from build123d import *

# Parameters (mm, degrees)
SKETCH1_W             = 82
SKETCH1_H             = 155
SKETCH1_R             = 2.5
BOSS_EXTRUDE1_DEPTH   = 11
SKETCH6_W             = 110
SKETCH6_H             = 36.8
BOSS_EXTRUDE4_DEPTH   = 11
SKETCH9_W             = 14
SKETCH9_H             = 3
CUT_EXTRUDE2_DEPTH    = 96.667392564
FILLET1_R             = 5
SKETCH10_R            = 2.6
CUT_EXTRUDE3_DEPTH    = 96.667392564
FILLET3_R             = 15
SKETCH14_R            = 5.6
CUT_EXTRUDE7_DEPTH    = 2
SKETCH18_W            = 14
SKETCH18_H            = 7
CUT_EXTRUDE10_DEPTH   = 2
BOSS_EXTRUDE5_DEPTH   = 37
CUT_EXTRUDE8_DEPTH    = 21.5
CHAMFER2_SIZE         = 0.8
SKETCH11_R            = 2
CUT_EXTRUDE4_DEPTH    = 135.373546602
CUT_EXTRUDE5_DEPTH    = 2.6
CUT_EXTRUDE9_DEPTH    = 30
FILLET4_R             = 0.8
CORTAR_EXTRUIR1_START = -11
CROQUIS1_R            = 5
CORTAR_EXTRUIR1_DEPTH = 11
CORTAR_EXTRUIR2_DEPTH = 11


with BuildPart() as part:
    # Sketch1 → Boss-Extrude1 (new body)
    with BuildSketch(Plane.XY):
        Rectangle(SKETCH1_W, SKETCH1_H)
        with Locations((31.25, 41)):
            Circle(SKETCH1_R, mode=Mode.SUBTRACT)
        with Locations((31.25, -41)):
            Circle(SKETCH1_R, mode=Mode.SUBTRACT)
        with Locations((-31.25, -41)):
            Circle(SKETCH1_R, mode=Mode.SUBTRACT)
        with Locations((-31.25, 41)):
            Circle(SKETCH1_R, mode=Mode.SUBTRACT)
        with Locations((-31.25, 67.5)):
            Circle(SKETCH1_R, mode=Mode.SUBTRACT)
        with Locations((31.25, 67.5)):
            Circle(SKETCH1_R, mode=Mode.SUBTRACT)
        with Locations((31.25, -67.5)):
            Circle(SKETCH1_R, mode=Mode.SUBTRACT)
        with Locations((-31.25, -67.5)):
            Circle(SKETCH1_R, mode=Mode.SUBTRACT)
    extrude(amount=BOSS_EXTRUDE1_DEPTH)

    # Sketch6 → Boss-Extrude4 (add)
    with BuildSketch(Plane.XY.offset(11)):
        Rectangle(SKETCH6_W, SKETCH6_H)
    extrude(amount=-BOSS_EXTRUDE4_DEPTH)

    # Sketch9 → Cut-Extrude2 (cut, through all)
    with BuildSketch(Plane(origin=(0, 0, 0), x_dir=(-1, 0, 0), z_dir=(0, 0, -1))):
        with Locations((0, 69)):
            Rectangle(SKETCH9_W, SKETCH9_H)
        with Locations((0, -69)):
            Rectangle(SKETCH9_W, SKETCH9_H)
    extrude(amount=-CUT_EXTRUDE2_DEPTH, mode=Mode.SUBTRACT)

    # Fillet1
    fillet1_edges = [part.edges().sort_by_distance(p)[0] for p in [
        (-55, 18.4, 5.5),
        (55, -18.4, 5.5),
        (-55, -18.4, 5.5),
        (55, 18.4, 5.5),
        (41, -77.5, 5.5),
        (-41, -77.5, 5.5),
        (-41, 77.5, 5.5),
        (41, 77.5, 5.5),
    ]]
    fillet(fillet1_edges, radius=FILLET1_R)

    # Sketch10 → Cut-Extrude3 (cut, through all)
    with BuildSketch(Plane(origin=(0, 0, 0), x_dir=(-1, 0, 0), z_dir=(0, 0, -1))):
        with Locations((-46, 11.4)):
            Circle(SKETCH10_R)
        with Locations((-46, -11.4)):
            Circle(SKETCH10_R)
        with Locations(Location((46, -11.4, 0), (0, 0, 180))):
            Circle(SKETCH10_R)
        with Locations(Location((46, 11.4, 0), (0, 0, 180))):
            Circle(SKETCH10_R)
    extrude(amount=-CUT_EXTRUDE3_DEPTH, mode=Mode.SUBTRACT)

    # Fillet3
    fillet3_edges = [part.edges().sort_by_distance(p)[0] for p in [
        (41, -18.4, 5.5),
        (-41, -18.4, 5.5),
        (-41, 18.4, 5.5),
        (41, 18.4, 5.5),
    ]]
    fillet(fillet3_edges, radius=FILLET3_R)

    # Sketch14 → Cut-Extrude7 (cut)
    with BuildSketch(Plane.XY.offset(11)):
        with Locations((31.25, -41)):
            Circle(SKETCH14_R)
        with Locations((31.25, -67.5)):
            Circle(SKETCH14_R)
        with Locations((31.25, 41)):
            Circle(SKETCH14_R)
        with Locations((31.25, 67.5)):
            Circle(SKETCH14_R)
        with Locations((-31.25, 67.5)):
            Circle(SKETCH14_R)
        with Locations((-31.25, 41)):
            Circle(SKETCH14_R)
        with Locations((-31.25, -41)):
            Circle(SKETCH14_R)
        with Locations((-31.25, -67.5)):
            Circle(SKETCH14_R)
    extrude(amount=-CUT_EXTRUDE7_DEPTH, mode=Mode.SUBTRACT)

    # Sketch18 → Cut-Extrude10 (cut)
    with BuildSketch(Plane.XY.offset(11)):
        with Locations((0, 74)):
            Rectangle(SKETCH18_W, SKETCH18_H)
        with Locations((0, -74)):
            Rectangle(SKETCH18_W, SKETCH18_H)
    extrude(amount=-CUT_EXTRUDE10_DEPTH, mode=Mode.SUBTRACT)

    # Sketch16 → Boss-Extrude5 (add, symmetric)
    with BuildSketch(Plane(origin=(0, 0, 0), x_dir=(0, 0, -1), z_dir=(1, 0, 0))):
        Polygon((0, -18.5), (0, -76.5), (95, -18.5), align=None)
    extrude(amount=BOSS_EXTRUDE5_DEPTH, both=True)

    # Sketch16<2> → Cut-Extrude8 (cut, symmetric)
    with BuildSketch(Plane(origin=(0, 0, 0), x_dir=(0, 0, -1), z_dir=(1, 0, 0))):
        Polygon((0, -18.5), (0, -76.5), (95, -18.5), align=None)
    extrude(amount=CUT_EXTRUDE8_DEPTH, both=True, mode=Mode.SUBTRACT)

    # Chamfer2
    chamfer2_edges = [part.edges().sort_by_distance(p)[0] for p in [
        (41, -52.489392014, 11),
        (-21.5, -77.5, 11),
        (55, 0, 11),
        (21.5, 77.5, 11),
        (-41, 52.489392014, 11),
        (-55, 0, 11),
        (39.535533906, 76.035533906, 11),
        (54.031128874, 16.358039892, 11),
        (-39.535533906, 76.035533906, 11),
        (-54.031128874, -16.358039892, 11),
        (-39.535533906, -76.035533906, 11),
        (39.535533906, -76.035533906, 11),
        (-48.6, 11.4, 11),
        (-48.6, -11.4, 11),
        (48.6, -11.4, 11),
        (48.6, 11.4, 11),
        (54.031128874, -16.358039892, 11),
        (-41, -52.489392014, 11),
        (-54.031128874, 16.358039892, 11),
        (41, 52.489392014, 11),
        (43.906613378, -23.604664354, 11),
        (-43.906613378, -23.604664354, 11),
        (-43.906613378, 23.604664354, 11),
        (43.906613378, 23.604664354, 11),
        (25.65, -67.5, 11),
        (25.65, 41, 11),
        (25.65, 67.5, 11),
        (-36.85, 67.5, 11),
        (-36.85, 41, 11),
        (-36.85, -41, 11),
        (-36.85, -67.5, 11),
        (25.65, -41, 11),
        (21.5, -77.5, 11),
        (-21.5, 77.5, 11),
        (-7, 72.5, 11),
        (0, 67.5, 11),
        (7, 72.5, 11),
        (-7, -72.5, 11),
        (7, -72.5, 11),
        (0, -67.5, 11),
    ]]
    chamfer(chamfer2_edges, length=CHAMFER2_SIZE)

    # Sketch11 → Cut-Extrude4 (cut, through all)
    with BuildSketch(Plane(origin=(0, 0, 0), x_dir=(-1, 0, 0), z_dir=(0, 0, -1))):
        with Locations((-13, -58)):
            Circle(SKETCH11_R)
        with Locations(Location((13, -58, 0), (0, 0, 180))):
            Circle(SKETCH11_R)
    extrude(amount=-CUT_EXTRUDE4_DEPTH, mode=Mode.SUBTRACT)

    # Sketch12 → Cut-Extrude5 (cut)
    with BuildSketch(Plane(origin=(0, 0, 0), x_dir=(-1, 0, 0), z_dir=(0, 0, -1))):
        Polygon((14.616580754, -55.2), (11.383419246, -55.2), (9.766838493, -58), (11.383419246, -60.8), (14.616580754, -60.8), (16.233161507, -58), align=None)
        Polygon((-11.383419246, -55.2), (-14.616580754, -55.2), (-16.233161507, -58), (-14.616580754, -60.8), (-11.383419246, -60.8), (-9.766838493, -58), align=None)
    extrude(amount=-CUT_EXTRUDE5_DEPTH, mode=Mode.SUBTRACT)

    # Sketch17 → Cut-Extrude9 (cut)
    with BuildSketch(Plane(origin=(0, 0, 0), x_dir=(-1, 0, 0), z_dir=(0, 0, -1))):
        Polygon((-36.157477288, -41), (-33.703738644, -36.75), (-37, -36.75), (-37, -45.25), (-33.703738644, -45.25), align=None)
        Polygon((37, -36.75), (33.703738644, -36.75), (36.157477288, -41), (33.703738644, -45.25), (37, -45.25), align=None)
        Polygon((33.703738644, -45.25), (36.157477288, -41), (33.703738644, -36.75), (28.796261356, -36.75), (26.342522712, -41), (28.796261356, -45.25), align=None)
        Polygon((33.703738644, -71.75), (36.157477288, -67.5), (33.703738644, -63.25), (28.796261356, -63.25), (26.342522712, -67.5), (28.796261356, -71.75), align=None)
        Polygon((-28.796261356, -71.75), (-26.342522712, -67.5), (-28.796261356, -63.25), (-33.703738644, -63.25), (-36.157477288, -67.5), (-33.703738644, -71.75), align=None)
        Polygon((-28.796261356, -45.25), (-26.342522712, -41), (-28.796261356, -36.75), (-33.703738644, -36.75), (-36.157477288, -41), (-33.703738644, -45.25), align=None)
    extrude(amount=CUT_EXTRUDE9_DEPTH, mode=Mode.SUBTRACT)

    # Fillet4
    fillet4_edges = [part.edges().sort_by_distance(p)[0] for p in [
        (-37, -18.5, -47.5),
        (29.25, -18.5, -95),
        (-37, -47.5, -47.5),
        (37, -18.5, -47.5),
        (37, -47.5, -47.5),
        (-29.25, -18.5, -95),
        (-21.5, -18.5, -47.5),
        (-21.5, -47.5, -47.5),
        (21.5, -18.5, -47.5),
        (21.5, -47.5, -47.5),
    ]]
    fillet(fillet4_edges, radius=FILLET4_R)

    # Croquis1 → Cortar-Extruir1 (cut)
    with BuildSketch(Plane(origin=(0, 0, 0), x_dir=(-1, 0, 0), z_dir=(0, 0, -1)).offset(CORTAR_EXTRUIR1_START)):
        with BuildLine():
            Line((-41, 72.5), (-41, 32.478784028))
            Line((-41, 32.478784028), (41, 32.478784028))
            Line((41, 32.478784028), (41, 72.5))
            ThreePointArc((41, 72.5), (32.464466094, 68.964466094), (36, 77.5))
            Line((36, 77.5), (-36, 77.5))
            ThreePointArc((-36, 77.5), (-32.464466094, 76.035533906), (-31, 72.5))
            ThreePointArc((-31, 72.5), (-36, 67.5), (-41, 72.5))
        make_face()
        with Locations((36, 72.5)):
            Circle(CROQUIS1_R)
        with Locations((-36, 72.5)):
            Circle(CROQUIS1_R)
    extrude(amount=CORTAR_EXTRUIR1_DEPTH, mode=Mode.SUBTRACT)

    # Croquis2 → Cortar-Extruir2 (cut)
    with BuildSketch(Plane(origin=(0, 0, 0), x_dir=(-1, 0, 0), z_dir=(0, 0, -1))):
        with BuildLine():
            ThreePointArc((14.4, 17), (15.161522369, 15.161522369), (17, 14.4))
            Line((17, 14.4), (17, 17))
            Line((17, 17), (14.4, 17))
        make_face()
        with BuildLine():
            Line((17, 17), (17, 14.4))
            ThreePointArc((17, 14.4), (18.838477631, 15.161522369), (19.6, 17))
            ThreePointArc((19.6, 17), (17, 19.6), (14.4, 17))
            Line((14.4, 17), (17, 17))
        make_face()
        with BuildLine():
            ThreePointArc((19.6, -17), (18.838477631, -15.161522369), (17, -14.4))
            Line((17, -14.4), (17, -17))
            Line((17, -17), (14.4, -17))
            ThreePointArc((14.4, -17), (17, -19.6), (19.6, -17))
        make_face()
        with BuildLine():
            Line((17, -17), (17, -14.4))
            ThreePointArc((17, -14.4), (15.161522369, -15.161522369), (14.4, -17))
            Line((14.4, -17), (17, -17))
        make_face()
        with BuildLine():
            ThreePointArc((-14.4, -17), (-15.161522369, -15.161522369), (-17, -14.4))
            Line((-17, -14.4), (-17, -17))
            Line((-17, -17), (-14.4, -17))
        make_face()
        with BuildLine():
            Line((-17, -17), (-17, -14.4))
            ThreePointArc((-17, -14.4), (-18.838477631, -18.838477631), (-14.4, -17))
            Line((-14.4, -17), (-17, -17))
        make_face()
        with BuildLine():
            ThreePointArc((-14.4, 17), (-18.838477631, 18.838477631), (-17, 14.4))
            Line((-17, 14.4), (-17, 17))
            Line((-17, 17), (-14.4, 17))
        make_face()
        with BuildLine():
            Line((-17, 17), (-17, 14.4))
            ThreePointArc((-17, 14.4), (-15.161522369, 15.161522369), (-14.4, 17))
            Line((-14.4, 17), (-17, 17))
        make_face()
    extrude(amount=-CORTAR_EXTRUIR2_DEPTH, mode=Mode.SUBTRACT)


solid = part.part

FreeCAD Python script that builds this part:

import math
import FreeCAD as App
import Part
import Sketcher
Q = App.Units.Quantity


def edges_at(feature, points):
    """Names of the edges that pass closest to the given points."""
    edges = feature.Shape.Edges
    near = lambda p: min(range(len(edges)), key=lambda i: edges[i].distToShape(Part.Vertex(*p))[0])
    return sorted({f"Edge{near(p) + 1}" for p in points})

doc = App.newDocument("Part")
body = doc.addObject("PartDesign::Body", "Body")

# Sketch on XY plane
sketch1 = body.newObject("Sketcher::SketchObject", "Sketch")
sketch1.AttachmentSupport = (doc.getObject("XY_Plane"), [""])
sketch1.MapMode = "FlatFace"
sketch1.addGeometry(Part.LineSegment(App.Vector(-41, 77.5, 0), App.Vector(-41, -77.5, 0)), False)
sketch1.addGeometry(Part.LineSegment(App.Vector(-41, -77.5, 0), App.Vector(41, -77.5, 0)), False)
sketch1.addGeometry(Part.LineSegment(App.Vector(41, -77.5, 0), App.Vector(41, 77.5, 0)), False)
sketch1.addGeometry(Part.LineSegment(App.Vector(41, 77.5, 0), App.Vector(-41, 77.5, 0)), False)
sketch1.addGeometry(Part.Circle(App.Vector(-31.25, -67.5, 0), App.Vector(0, 0, 1), 2.5), False)
sketch1.addGeometry(Part.Circle(App.Vector(-31.25, -41, 0), App.Vector(0, 0, 1), 2.5), False)
sketch1.addGeometry(Part.Circle(App.Vector(31.25, -67.5, 0), App.Vector(0, 0, 1), 2.5), False)
sketch1.addGeometry(Part.Circle(App.Vector(31.25, -41, 0), App.Vector(0, 0, 1), 2.5), False)
sketch1.addGeometry(Part.Circle(App.Vector(-31.25, 41, 0), App.Vector(0, 0, 1), 2.5), False)
sketch1.addGeometry(Part.Circle(App.Vector(-31.25, 67.5, 0), App.Vector(0, 0, 1), 2.5), False)
sketch1.addGeometry(Part.Circle(App.Vector(31.25, 41, 0), App.Vector(0, 0, 1), 2.5), False)
sketch1.addGeometry(Part.Circle(App.Vector(31.25, 67.5, 0), App.Vector(0, 0, 1), 2.5), False)
sketch1.addConstraint(Sketcher.Constraint("Coincident", 0, 2, 1, 1))
sketch1.addConstraint(Sketcher.Constraint("Coincident", 1, 2, 2, 1))
sketch1.addConstraint(Sketcher.Constraint("Coincident", 2, 2, 3, 1))
sketch1.addConstraint(Sketcher.Constraint("Coincident", 3, 2, 0, 1))
sketch1.addConstraint(Sketcher.Constraint("Vertical", 0))
sketch1.addConstraint(Sketcher.Constraint("Horizontal", 1))
sketch1.addConstraint(Sketcher.Constraint("Vertical", 2))
sketch1.addConstraint(Sketcher.Constraint("Horizontal", 3))
sketch1.addConstraint(Sketcher.Constraint("Equal", 4, 5))
sketch1.addConstraint(Sketcher.Constraint("Equal", 5, 6))
sketch1.addConstraint(Sketcher.Constraint("Equal", 6, 7))
sketch1.addConstraint(Sketcher.Constraint("Equal", 7, 8))
sketch1.addConstraint(Sketcher.Constraint("Equal", 8, 9))
sketch1.addConstraint(Sketcher.Constraint("Equal", 9, 10))
sketch1.addConstraint(Sketcher.Constraint("Equal", 10, 11))
sketch1.addConstraint(Sketcher.Constraint("Symmetric", 7, 3, 8, 3, -1, 1))
sketch1.addConstraint(Sketcher.Constraint("Symmetric", 6, 3, 9, 3, -1, 1))
sketch1.addConstraint(Sketcher.Constraint("Symmetric", 5, 3, 10, 3, -1, 1))
sketch1.addConstraint(Sketcher.Constraint("Symmetric", 4, 3, 11, 3, -1, 1))
sketch1.addConstraint(Sketcher.Constraint("Symmetric", 0, 2, 2, 2, -1, 1))
sketch1.addConstraint(Sketcher.Constraint("Symmetric", 4, 3, 6, 3, -2))
sketch1.addConstraint(Sketcher.Constraint("Symmetric", 5, 3, 7, 3, -2))
sketch1.addConstraint(Sketcher.Constraint("Vertical", 4, 3, 5, 3))
sketch1.addConstraint(Sketcher.Constraint("Diameter", 4, 5.0))
sketch1.addConstraint(Sketcher.Constraint("DistanceX", 1, 1, 1, 2, 82.0))
sketch1.addConstraint(Sketcher.Constraint("DistanceY", 0, 2, 0, 1, 155.0))
sketch1.addConstraint(Sketcher.Constraint("DistanceY", 5, 3, -1, 1, 41.0))
sketch1.addConstraint(Sketcher.Constraint("DistanceY", 4, 3, 9, 3, 135.0))
sketch1.addConstraint(Sketcher.Constraint("DistanceX", 4, 3, 6, 3, 62.5))
pad1 = body.newObject("PartDesign::Pad", "Pad")
pad1.Profile = sketch1
pad1.Length = 11

# Sketch on XY plane
sketch2 = body.newObject("Sketcher::SketchObject", "Sketch001")
sketch2.AttachmentSupport = (doc.getObject("XY_Plane"), [""])
sketch2.MapMode = "FlatFace"
sketch2.AttachmentOffset = App.Placement(App.Vector(0, 0, 11), App.Rotation())
sketch2.addGeometry(Part.LineSegment(App.Vector(-55, 18.4, 0), App.Vector(-55, -18.4, 0)), False)
sketch2.addGeometry(Part.LineSegment(App.Vector(-55, -18.4, 0), App.Vector(55, -18.4, 0)), False)
sketch2.addGeometry(Part.LineSegment(App.Vector(55, -18.4, 0), App.Vector(55, 18.4, 0)), False)
sketch2.addGeometry(Part.LineSegment(App.Vector(55, 18.4, 0), App.Vector(-55, 18.4, 0)), False)
sketch2.addConstraint(Sketcher.Constraint("Coincident", 0, 2, 1, 1))
sketch2.addConstraint(Sketcher.Constraint("Coincident", 1, 2, 2, 1))
sketch2.addConstraint(Sketcher.Constraint("Coincident", 2, 2, 3, 1))
sketch2.addConstraint(Sketcher.Constraint("Coincident", 3, 2, 0, 1))
sketch2.addConstraint(Sketcher.Constraint("Vertical", 0))
sketch2.addConstraint(Sketcher.Constraint("Horizontal", 1))
sketch2.addConstraint(Sketcher.Constraint("Vertical", 2))
sketch2.addConstraint(Sketcher.Constraint("Horizontal", 3))
sketch2.addConstraint(Sketcher.Constraint("Symmetric", 0, 2, 2, 2, -1, 1))
sketch2.addConstraint(Sketcher.Constraint("DistanceX", 1, 1, 1, 2, 110.0))
sketch2.addConstraint(Sketcher.Constraint("DistanceY", 0, 2, 0, 1, 36.8))
pad2 = body.newObject("PartDesign::Pad", "Pad001")
pad2.Profile = sketch2
pad2.Length = 11
pad2.Reversed = True

# Sketch on XY plane
sketch3 = body.newObject("Sketcher::SketchObject", "Sketch002")
sketch3.AttachmentSupport = (doc.getObject("XY_Plane"), [""])
sketch3.MapMode = "FlatFace"
sketch3.addGeometry(Part.LineSegment(App.Vector(7, 70.5, 0), App.Vector(7, 67.5, 0)), False)
sketch3.addGeometry(Part.LineSegment(App.Vector(7, 67.5, 0), App.Vector(-7, 67.5, 0)), False)
sketch3.addGeometry(Part.LineSegment(App.Vector(-7, 67.5, 0), App.Vector(-7, 70.5, 0)), False)
sketch3.addGeometry(Part.LineSegment(App.Vector(-7, 70.5, 0), App.Vector(7, 70.5, 0)), False)
sketch3.addGeometry(Part.LineSegment(App.Vector(7, -67.5, 0), App.Vector(7, -70.5, 0)), False)
sketch3.addGeometry(Part.LineSegment(App.Vector(7, -70.5, 0), App.Vector(-7, -70.5, 0)), False)
sketch3.addGeometry(Part.LineSegment(App.Vector(-7, -70.5, 0), App.Vector(-7, -67.5, 0)), False)
sketch3.addGeometry(Part.LineSegment(App.Vector(-7, -67.5, 0), App.Vector(7, -67.5, 0)), False)
sketch3.addConstraint(Sketcher.Constraint("Coincident", 0, 2, 1, 1))
sketch3.addConstraint(Sketcher.Constraint("Coincident", 1, 2, 2, 1))
sketch3.addConstraint(Sketcher.Constraint("Coincident", 2, 2, 3, 1))
sketch3.addConstraint(Sketcher.Constraint("Coincident", 3, 2, 0, 1))
sketch3.addConstraint(Sketcher.Constraint("Coincident", 4, 2, 5, 1))
sketch3.addConstraint(Sketcher.Constraint("Coincident", 5, 2, 6, 1))
sketch3.addConstraint(Sketcher.Constraint("Coincident", 6, 2, 7, 1))
sketch3.addConstraint(Sketcher.Constraint("Coincident", 7, 2, 4, 1))
sketch3.addConstraint(Sketcher.Constraint("Vertical", 0))
sketch3.addConstraint(Sketcher.Constraint("Horizontal", 1))
sketch3.addConstraint(Sketcher.Constraint("Vertical", 2))
sketch3.addConstraint(Sketcher.Constraint("Horizontal", 3))
sketch3.addConstraint(Sketcher.Constraint("Vertical", 4))
sketch3.addConstraint(Sketcher.Constraint("Horizontal", 5))
sketch3.addConstraint(Sketcher.Constraint("Vertical", 6))
sketch3.addConstraint(Sketcher.Constraint("Horizontal", 7))
sketch3.addConstraint(Sketcher.Constraint("Symmetric", 2, 2, 4, 2, -1, 1))
sketch3.addConstraint(Sketcher.Constraint("Symmetric", 0, 2, 6, 2, -1, 1))
sketch3.addConstraint(Sketcher.Constraint("Vertical", 3, 2, 4, 2))
sketch3.addConstraint(Sketcher.Constraint("DistanceX", 1, 2, 1, 1, 14.0))
sketch3.addConstraint(Sketcher.Constraint("DistanceY", 0, 2, 0, 1, 3.0))
sketch3.addConstraint(Sketcher.Constraint("DistanceY", 4, 2, 0, 2, 138.0))
pocket1 = body.newObject("PartDesign::Pocket", "Pocket")
pocket1.Profile = sketch3
pocket1.Type = "ThroughAll"
pocket1.Reversed = True
doc.recompute()

fillet = body.newObject("PartDesign::Fillet", "Fillet")
fillet.Base = (pocket1, edges_at(pocket1, [
    (-55, 18.4, 5.5),
    (55, -18.4, 5.5),
    (-55, -18.4, 5.5),
    (55, 18.4, 5.5),
    (41, -77.5, 5.5),
    (-41, -77.5, 5.5),
    (-41, 77.5, 5.5),
    (41, 77.5, 5.5),
]))
fillet.Radius = 5

# Sketch on XY plane
sketch4 = body.newObject("Sketcher::SketchObject", "Sketch003")
sketch4.AttachmentSupport = (doc.getObject("XY_Plane"), [""])
sketch4.MapMode = "FlatFace"
sketch4.addGeometry(Part.Circle(App.Vector(46, 11.4, 0), App.Vector(0, 0, 1), 2.6), False)
sketch4.addGeometry(Part.Circle(App.Vector(46, -11.4, 0), App.Vector(0, 0, 1), 2.6), False)
sketch4.addGeometry(Part.Circle(App.Vector(-46, -11.4, 0), App.Vector(0, 0, 1), 2.6), False)
sketch4.addGeometry(Part.Circle(App.Vector(-46, 11.4, 0), App.Vector(0, 0, 1), 2.6), False)
sketch4.addConstraint(Sketcher.Constraint("Equal", 0, 1))
sketch4.addConstraint(Sketcher.Constraint("Equal", 1, 2))
sketch4.addConstraint(Sketcher.Constraint("Equal", 2, 3))
sketch4.addConstraint(Sketcher.Constraint("Symmetric", 0, 3, 2, 3, -1, 1))
sketch4.addConstraint(Sketcher.Constraint("Symmetric", 1, 3, 3, 3, -1, 1))
sketch4.addConstraint(Sketcher.Constraint("Symmetric", 1, 3, 2, 3, -2))
sketch4.addConstraint(Sketcher.Constraint("Diameter", 0, 5.2))
sketch4.addConstraint(Sketcher.Constraint("DistanceX", -1, 1, 0, 3, 46.0))
sketch4.addConstraint(Sketcher.Constraint("DistanceY", -1, 1, 0, 3, 11.4))
pocket2 = body.newObject("PartDesign::Pocket", "Pocket001")
pocket2.Profile = sketch4
pocket2.Type = "ThroughAll"
pocket2.Reversed = True
doc.recompute()

fillet2 = body.newObject("PartDesign::Fillet", "Fillet001")
fillet2.Base = (pocket2, edges_at(pocket2, [
    (41, -18.4, 5.5),
    (-41, -18.4, 5.5),
    (-41, 18.4, 5.5),
    (41, 18.4, 5.5),
]))
fillet2.Radius = 15

# Sketch on XY plane
sketch5 = body.newObject("Sketcher::SketchObject", "Sketch004")
sketch5.AttachmentSupport = (doc.getObject("XY_Plane"), [""])
sketch5.MapMode = "FlatFace"
sketch5.AttachmentOffset = App.Placement(App.Vector(0, 0, 11), App.Rotation())
sketch5.addGeometry(Part.Circle(App.Vector(31.25, -41, 0), App.Vector(0, 0, 1), 5.6), False)
sketch5.addGeometry(Part.Circle(App.Vector(31.25, -67.5, 0), App.Vector(0, 0, 1), 5.6), False)
sketch5.addGeometry(Part.Circle(App.Vector(31.25, 41, 0), App.Vector(0, 0, 1), 5.6), False)
sketch5.addGeometry(Part.Circle(App.Vector(31.25, 67.5, 0), App.Vector(0, 0, 1), 5.6), False)
sketch5.addGeometry(Part.Circle(App.Vector(-31.25, 67.5, 0), App.Vector(0, 0, 1), 5.6), False)
sketch5.addGeometry(Part.Circle(App.Vector(-31.25, 41, 0), App.Vector(0, 0, 1), 5.6), False)
sketch5.addGeometry(Part.Circle(App.Vector(-31.25, -41, 0), App.Vector(0, 0, 1), 5.6), False)
sketch5.addGeometry(Part.Circle(App.Vector(-31.25, -67.5, 0), App.Vector(0, 0, 1), 5.6), False)
sketch5.addConstraint(Sketcher.Constraint("Equal", 0, 1))
sketch5.addConstraint(Sketcher.Constraint("Equal", 1, 2))
sketch5.addConstraint(Sketcher.Constraint("Equal", 2, 3))
sketch5.addConstraint(Sketcher.Constraint("Equal", 3, 4))
sketch5.addConstraint(Sketcher.Constraint("Equal", 4, 5))
sketch5.addConstraint(Sketcher.Constraint("Equal", 5, 6))
sketch5.addConstraint(Sketcher.Constraint("Equal", 6, 7))
sketch5.addConstraint(Sketcher.Constraint("Symmetric", 1, 3, 4, 3, -1, 1))
sketch5.addConstraint(Sketcher.Constraint("Symmetric", 0, 3, 5, 3, -1, 1))
sketch5.addConstraint(Sketcher.Constraint("Symmetric", 2, 3, 6, 3, -1, 1))
sketch5.addConstraint(Sketcher.Constraint("Symmetric", 3, 3, 7, 3, -1, 1))
sketch5.addConstraint(Sketcher.Constraint("Symmetric", 3, 3, 4, 3, -2))
sketch5.addConstraint(Sketcher.Constraint("Symmetric", 2, 3, 5, 3, -2))
sketch5.addConstraint(Sketcher.Constraint("Vertical", 0, 3, 1, 3))
sketch5.addConstraint(Sketcher.Constraint("Diameter", 0, 11.2))
sketch5.addConstraint(Sketcher.Constraint("DistanceY", 0, 3, -1, 1, 41.0))
sketch5.addConstraint(Sketcher.Constraint("DistanceY", 1, 3, 3, 3, 135.0))
sketch5.addConstraint(Sketcher.Constraint("DistanceX", 4, 3, 3, 3, 62.5))
pocket3 = body.newObject("PartDesign::Pocket", "Pocket002")
pocket3.Profile = sketch5
pocket3.Length = 2

# Sketch on XY plane
sketch6 = body.newObject("Sketcher::SketchObject", "Sketch005")
sketch6.AttachmentSupport = (doc.getObject("XY_Plane"), [""])
sketch6.MapMode = "FlatFace"
sketch6.AttachmentOffset = App.Placement(App.Vector(0, 0, 11), App.Rotation())
sketch6.addGeometry(Part.LineSegment(App.Vector(-7, 77.5, 0), App.Vector(-7, 70.5, 0)), False)
sketch6.addGeometry(Part.LineSegment(App.Vector(-7, 70.5, 0), App.Vector(7, 70.5, 0)), False)
sketch6.addGeometry(Part.LineSegment(App.Vector(7, 70.5, 0), App.Vector(7, 77.5, 0)), False)
sketch6.addGeometry(Part.LineSegment(App.Vector(7, 77.5, 0), App.Vector(-7, 77.5, 0)), False)
sketch6.addGeometry(Part.LineSegment(App.Vector(-7, -70.5, 0), App.Vector(-7, -77.5, 0)), False)
sketch6.addGeometry(Part.LineSegment(App.Vector(-7, -77.5, 0), App.Vector(7, -77.5, 0)), False)
sketch6.addGeometry(Part.LineSegment(App.Vector(7, -77.5, 0), App.Vector(7, -70.5, 0)), False)
sketch6.addGeometry(Part.LineSegment(App.Vector(7, -70.5, 0), App.Vector(-7, -70.5, 0)), False)
sketch6.addConstraint(Sketcher.Constraint("Coincident", 0, 2, 1, 1))
sketch6.addConstraint(Sketcher.Constraint("Coincident", 1, 2, 2, 1))
sketch6.addConstraint(Sketcher.Constraint("Coincident", 2, 2, 3, 1))
sketch6.addConstraint(Sketcher.Constraint("Coincident", 3, 2, 0, 1))
sketch6.addConstraint(Sketcher.Constraint("Coincident", 4, 2, 5, 1))
sketch6.addConstraint(Sketcher.Constraint("Coincident", 5, 2, 6, 1))
sketch6.addConstraint(Sketcher.Constraint("Coincident", 6, 2, 7, 1))
sketch6.addConstraint(Sketcher.Constraint("Coincident", 7, 2, 4, 1))
sketch6.addConstraint(Sketcher.Constraint("Vertical", 0))
sketch6.addConstraint(Sketcher.Constraint("Horizontal", 1))
sketch6.addConstraint(Sketcher.Constraint("Vertical", 2))
sketch6.addConstraint(Sketcher.Constraint("Horizontal", 3))
sketch6.addConstraint(Sketcher.Constraint("Vertical", 4))
sketch6.addConstraint(Sketcher.Constraint("Horizontal", 5))
sketch6.addConstraint(Sketcher.Constraint("Vertical", 6))
sketch6.addConstraint(Sketcher.Constraint("Horizontal", 7))
sketch6.addConstraint(Sketcher.Constraint("Symmetric", 2, 2, 4, 2, -1, 1))
sketch6.addConstraint(Sketcher.Constraint("Symmetric", 0, 2, 6, 2, -1, 1))
sketch6.addConstraint(Sketcher.Constraint("Vertical", 3, 2, 4, 2))
sketch6.addConstraint(Sketcher.Constraint("DistanceX", 1, 1, 1, 2, 14.0))
sketch6.addConstraint(Sketcher.Constraint("DistanceY", 0, 2, 0, 1, 7.0))
sketch6.addConstraint(Sketcher.Constraint("DistanceY", 4, 2, 0, 2, 148.0))
pocket4 = body.newObject("PartDesign::Pocket", "Pocket003")
pocket4.Profile = sketch6
pocket4.Length = 2

# Sketch on YZ plane
sketch7 = body.newObject("Sketcher::SketchObject", "Sketch006")
sketch7.AttachmentSupport = (doc.getObject("YZ_Plane"), [""])
sketch7.MapMode = "FlatFace"
sketch7.addGeometry(Part.LineSegment(App.Vector(-18.5, 0, 0), App.Vector(-76.5, 0, 0)), False)
sketch7.addGeometry(Part.LineSegment(App.Vector(-76.5, 0, 0), App.Vector(-18.5, -95, 0)), False)
sketch7.addGeometry(Part.LineSegment(App.Vector(-18.5, -95, 0), App.Vector(-18.5, 0, 0)), False)
sketch7.addConstraint(Sketcher.Constraint("Coincident", 0, 2, 1, 1))
sketch7.addConstraint(Sketcher.Constraint("Coincident", 1, 2, 2, 1))
sketch7.addConstraint(Sketcher.Constraint("Coincident", 2, 2, 0, 1))
sketch7.addConstraint(Sketcher.Constraint("Horizontal", 0))
sketch7.addConstraint(Sketcher.Constraint("Vertical", 2))
sketch7.addConstraint(Sketcher.Constraint("PointOnObject", 0, 2, -1))
sketch7.addConstraint(Sketcher.Constraint("DistanceX", 0, 2, 0, 1, 58.0))
sketch7.addConstraint(Sketcher.Constraint("DistanceY", 2, 1, 2, 2, 95.0))
sketch7.addConstraint(Sketcher.Constraint("DistanceX", 0, 2, -1, 1, 76.5))
pad3 = body.newObject("PartDesign::Pad", "Pad002")
pad3.Profile = sketch7
pad3.Length = 74
pad3.Midplane = True

# Sketch on YZ plane
sketch8 = body.newObject("Sketcher::SketchObject", "Sketch007")
sketch8.AttachmentSupport = (doc.getObject("YZ_Plane"), [""])
sketch8.MapMode = "FlatFace"
sketch8.addGeometry(Part.LineSegment(App.Vector(-18.5, 0, 0), App.Vector(-76.5, 0, 0)), False)
sketch8.addGeometry(Part.LineSegment(App.Vector(-76.5, 0, 0), App.Vector(-18.5, -95, 0)), False)
sketch8.addGeometry(Part.LineSegment(App.Vector(-18.5, -95, 0), App.Vector(-18.5, 0, 0)), False)
sketch8.addConstraint(Sketcher.Constraint("Coincident", 0, 2, 1, 1))
sketch8.addConstraint(Sketcher.Constraint("Coincident", 1, 2, 2, 1))
sketch8.addConstraint(Sketcher.Constraint("Coincident", 2, 2, 0, 1))
sketch8.addConstraint(Sketcher.Constraint("Horizontal", 0))
sketch8.addConstraint(Sketcher.Constraint("Vertical", 2))
sketch8.addConstraint(Sketcher.Constraint("PointOnObject", 0, 2, -1))
sketch8.addConstraint(Sketcher.Constraint("DistanceX", 0, 2, 0, 1, 58.0))
sketch8.addConstraint(Sketcher.Constraint("DistanceY", 2, 1, 2, 2, 95.0))
sketch8.addConstraint(Sketcher.Constraint("DistanceX", 0, 2, -1, 1, 76.5))
pocket5 = body.newObject("PartDesign::Pocket", "Pocket004")
pocket5.Profile = sketch8
pocket5.Length = 43
pocket5.Midplane = True
doc.recompute()

chamfer = body.newObject("PartDesign::Chamfer", "Chamfer")
chamfer.Base = (pocket5, edges_at(pocket5, [
    (41, -52.489, 11),
    (-21.5, -77.5, 11),
    (55, 0, 11),
    (21.5, 77.5, 11),
    (-41, 52.489, 11),
    (-55, 0, 11),
    (39.536, 76.036, 11),
    (54.031, 16.358, 11),
    (-39.536, 76.036, 11),
    (-54.031, -16.358, 11),
    (-39.536, -76.036, 11),
    (39.536, -76.036, 11),
    (-48.6, 11.4, 11),
    (-48.6, -11.4, 11),
    (48.6, -11.4, 11),
    (48.6, 11.4, 11),
    (54.031, -16.358, 11),
    (-41, -52.489, 11),
    (-54.031, 16.358, 11),
    (41, 52.489, 11),
    (43.907, -23.605, 11),
    (-43.907, -23.605, 11),
    (-43.907, 23.605, 11),
    (43.907, 23.605, 11),
    (25.65, -67.5, 11),
    (25.65, 41, 11),
    (25.65, 67.5, 11),
    (-36.85, 67.5, 11),
    (-36.85, 41, 11),
    (-36.85, -41, 11),
    (-36.85, -67.5, 11),
    (25.65, -41, 11),
    (21.5, -77.5, 11),
    (-21.5, 77.5, 11),
    (-7, 72.5, 11),
    (0, 67.5, 11),
    (7, 72.5, 11),
    (-7, -72.5, 11),
    (7, -72.5, 11),
    (0, -67.5, 11),
]))
chamfer.Size = 0.8

# Sketch on XY plane
sketch9 = body.newObject("Sketcher::SketchObject", "Sketch008")
sketch9.AttachmentSupport = (doc.getObject("XY_Plane"), [""])
sketch9.MapMode = "FlatFace"
sketch9.addGeometry(Part.Circle(App.Vector(13, -58, 0), App.Vector(0, 0, 1), 2), False)
sketch9.addGeometry(Part.Circle(App.Vector(-13, -58, 0), App.Vector(0, 0, 1), 2), False)
sketch9.addConstraint(Sketcher.Constraint("Equal", 0, 1))
sketch9.addConstraint(Sketcher.Constraint("Symmetric", 0, 3, 1, 3, -2))
sketch9.addConstraint(Sketcher.Constraint("Diameter", 0, 4.0))
sketch9.addConstraint(Sketcher.Constraint("DistanceX", -1, 1, 0, 3, 13.0))
sketch9.addConstraint(Sketcher.Constraint("DistanceY", 0, 3, -1, 1, 58.0))
pocket6 = body.newObject("PartDesign::Pocket", "Pocket005")
pocket6.Profile = sketch9
pocket6.Type = "ThroughAll"
pocket6.Reversed = True

# Sketch on XY plane
sketch10 = body.newObject("Sketcher::SketchObject", "Sketch009")
sketch10.AttachmentSupport = (doc.getObject("XY_Plane"), [""])
sketch10.MapMode = "FlatFace"
sketch10.addGeometry(Part.LineSegment(App.Vector(-14.616581, -55.2, 0), App.Vector(-11.383419, -55.2, 0)), False)
sketch10.addGeometry(Part.LineSegment(App.Vector(-11.383419, -55.2, 0), App.Vector(-9.766838, -58, 0)), False)
sketch10.addGeometry(Part.LineSegment(App.Vector(-9.766838, -58, 0), App.Vector(-11.383419, -60.8, 0)), False)
sketch10.addGeometry(Part.LineSegment(App.Vector(-11.383419, -60.8, 0), App.Vector(-14.616581, -60.8, 0)), False)
sketch10.addGeometry(Part.LineSegment(App.Vector(-14.616581, -60.8, 0), App.Vector(-16.233162, -58, 0)), False)
sketch10.addGeometry(Part.LineSegment(App.Vector(-16.233162, -58, 0), App.Vector(-14.616581, -55.2, 0)), False)
sketch10.addGeometry(Part.LineSegment(App.Vector(11.383419, -55.2, 0), App.Vector(14.616581, -55.2, 0)), False)
sketch10.addGeometry(Part.LineSegment(App.Vector(14.616581, -55.2, 0), App.Vector(16.233162, -58, 0)), False)
sketch10.addGeometry(Part.LineSegment(App.Vector(16.233162, -58, 0), App.Vector(14.616581, -60.8, 0)), False)
sketch10.addGeometry(Part.LineSegment(App.Vector(14.616581, -60.8, 0), App.Vector(11.383419, -60.8, 0)), False)
sketch10.addGeometry(Part.LineSegment(App.Vector(11.383419, -60.8, 0), App.Vector(9.766838, -58, 0)), False)
sketch10.addGeometry(Part.LineSegment(App.Vector(9.766838, -58, 0), App.Vector(11.383419, -55.2, 0)), False)
sketch10.addConstraint(Sketcher.Constraint("Coincident", 0, 2, 1, 1))
sketch10.addConstraint(Sketcher.Constraint("Coincident", 1, 2, 2, 1))
sketch10.addConstraint(Sketcher.Constraint("Coincident", 2, 2, 3, 1))
sketch10.addConstraint(Sketcher.Constraint("Coincident", 3, 2, 4, 1))
sketch10.addConstraint(Sketcher.Constraint("Coincident", 4, 2, 5, 1))
sketch10.addConstraint(Sketcher.Constraint("Coincident", 5, 2, 0, 1))
sketch10.addConstraint(Sketcher.Constraint("Coincident", 6, 2, 7, 1))
sketch10.addConstraint(Sketcher.Constraint("Coincident", 7, 2, 8, 1))
sketch10.addConstraint(Sketcher.Constraint("Coincident", 8, 2, 9, 1))
sketch10.addConstraint(Sketcher.Constraint("Coincident", 9, 2, 10, 1))
sketch10.addConstraint(Sketcher.Constraint("Coincident", 10, 2, 11, 1))
sketch10.addConstraint(Sketcher.Constraint("Coincident", 11, 2, 6, 1))
sketch10.addConstraint(Sketcher.Constraint("Horizontal", 0))
sketch10.addConstraint(Sketcher.Constraint("Horizontal", 3))
sketch10.addConstraint(Sketcher.Constraint("Horizontal", 6))
sketch10.addConstraint(Sketcher.Constraint("Horizontal", 9))
sketch10.addConstraint(Sketcher.Constraint("Symmetric", 5, 2, 6, 2, -2))
sketch10.addConstraint(Sketcher.Constraint("Symmetric", 4, 2, 7, 2, -2))
sketch10.addConstraint(Sketcher.Constraint("Symmetric", 3, 2, 8, 2, -2))
sketch10.addConstraint(Sketcher.Constraint("Symmetric", 1, 2, 10, 2, -2))
sketch10.addConstraint(Sketcher.Constraint("Parallel", 1, 4))
sketch10.addConstraint(Sketcher.Constraint("Parallel", 2, 5))
sketch10.addConstraint(Sketcher.Constraint("Parallel", 4, 7))
sketch10.addConstraint(Sketcher.Constraint("Parallel", 7, 10))
sketch10.addConstraint(Sketcher.Constraint("Parallel", 8, 11))
sketch10.addConstraint(Sketcher.Constraint("Horizontal", 1, 2, 4, 2))
sketch10.addConstraint(Sketcher.Constraint("Vertical", 0, 2, 2, 2))
sketch10.addConstraint(Sketcher.Constraint("Angle", 1, Q("-60 deg")))
sketch10.addConstraint(Sketcher.Constraint("DistanceY", 1, 2, -1, 1, 58.0))
sketch10.addConstraint(Sketcher.Constraint("DistanceX", 0, 2, 6, 2, 26.0))
sketch10.addConstraint(Sketcher.Constraint("DistanceY", 0, 2, -1, 1, 55.2))
sketch10.addConstraint(Sketcher.Constraint("DistanceX", 0, 1, 0, 2, 3.233162))
pocket7 = body.newObject("PartDesign::Pocket", "Pocket006")
pocket7.Profile = sketch10
pocket7.Length = 2.6
pocket7.Reversed = True

# Sketch on XY plane
sketch11 = body.newObject("Sketcher::SketchObject", "Sketch010")
sketch11.AttachmentSupport = (doc.getObject("XY_Plane"), [""])
sketch11.MapMode = "FlatFace"
sketch11.addGeometry(Part.LineSegment(App.Vector(37, -36.75, 0), App.Vector(37, -45.25, 0)), False)
sketch11.addGeometry(Part.LineSegment(App.Vector(37, -45.25, 0), App.Vector(28.796261, -45.25, 0)), False)
sketch11.addGeometry(Part.LineSegment(App.Vector(28.796261, -45.25, 0), App.Vector(26.342523, -41, 0)), False)
sketch11.addGeometry(Part.LineSegment(App.Vector(26.342523, -41, 0), App.Vector(28.796261, -36.75, 0)), False)
sketch11.addGeometry(Part.LineSegment(App.Vector(28.796261, -36.75, 0), App.Vector(37, -36.75, 0)), False)
sketch11.addGeometry(Part.LineSegment(App.Vector(-37, -36.75, 0), App.Vector(-28.796261, -36.75, 0)), False)
sketch11.addGeometry(Part.LineSegment(App.Vector(-28.796261, -36.75, 0), App.Vector(-26.342523, -41, 0)), False)
sketch11.addGeometry(Part.LineSegment(App.Vector(-26.342523, -41, 0), App.Vector(-28.796261, -45.25, 0)), False)
sketch11.addGeometry(Part.LineSegment(App.Vector(-28.796261, -45.25, 0), App.Vector(-37, -45.25, 0)), False)
sketch11.addGeometry(Part.LineSegment(App.Vector(-37, -45.25, 0), App.Vector(-37, -36.75, 0)), False)
sketch11.addGeometry(Part.LineSegment(App.Vector(-33.703739, -71.75, 0), App.Vector(-36.157477, -67.5, 0)), False)
sketch11.addGeometry(Part.LineSegment(App.Vector(-36.157477, -67.5, 0), App.Vector(-33.703739, -63.25, 0)), False)
sketch11.addGeometry(Part.LineSegment(App.Vector(-33.703739, -63.25, 0), App.Vector(-28.796261, -63.25, 0)), False)
sketch11.addGeometry(Part.LineSegment(App.Vector(-28.796261, -63.25, 0), App.Vector(-26.342523, -67.5, 0)), False)
sketch11.addGeometry(Part.LineSegment(App.Vector(-26.342523, -67.5, 0), App.Vector(-28.796261, -71.75, 0)), False)
sketch11.addGeometry(Part.LineSegment(App.Vector(-28.796261, -71.75, 0), App.Vector(-33.703739, -71.75, 0)), False)
sketch11.addGeometry(Part.LineSegment(App.Vector(28.796261, -71.75, 0), App.Vector(26.342523, -67.5, 0)), False)
sketch11.addGeometry(Part.LineSegment(App.Vector(26.342523, -67.5, 0), App.Vector(28.796261, -63.25, 0)), False)
sketch11.addGeometry(Part.LineSegment(App.Vector(28.796261, -63.25, 0), App.Vector(33.703739, -63.25, 0)), False)
sketch11.addGeometry(Part.LineSegment(App.Vector(33.703739, -63.25, 0), App.Vector(36.157477, -67.5, 0)), False)
sketch11.addGeometry(Part.LineSegment(App.Vector(36.157477, -67.5, 0), App.Vector(33.703739, -71.75, 0)), False)
sketch11.addGeometry(Part.LineSegment(App.Vector(33.703739, -71.75, 0), App.Vector(28.796261, -71.75, 0)), False)
sketch11.addConstraint(Sketcher.Constraint("Coincident", 0, 2, 1, 1))
sketch11.addConstraint(Sketcher.Constraint("Coincident", 1, 2, 2, 1))
sketch11.addConstraint(Sketcher.Constraint("Coincident", 2, 2, 3, 1))
sketch11.addConstraint(Sketcher.Constraint("Coincident", 3, 2, 4, 1))
sketch11.addConstraint(Sketcher.Constraint("Coincident", 4, 2, 0, 1))
sketch11.addConstraint(Sketcher.Constraint("Coincident", 5, 2, 6, 1))
sketch11.addConstraint(Sketcher.Constraint("Coincident", 6, 2, 7, 1))
sketch11.addConstraint(Sketcher.Constraint("Coincident", 7, 2, 8, 1))
sketch11.addConstraint(Sketcher.Constraint("Coincident", 8, 2, 9, 1))
sketch11.addConstraint(Sketcher.Constraint("Coincident", 9, 2, 5, 1))
sketch11.addConstraint(Sketcher.Constraint("Coincident", 10, 2, 11, 1))
sketch11.addConstraint(Sketcher.Constraint("Coincident", 11, 2, 12, 1))
sketch11.addConstraint(Sketcher.Constraint("Coincident", 12, 2, 13, 1))
sketch11.addConstraint(Sketcher.Constraint("Coincident", 13, 2, 14, 1))
sketch11.addConstraint(Sketcher.Constraint("Coincident", 14, 2, 15, 1))
sketch11.addConstraint(Sketcher.Constraint("Coincident", 15, 2, 10, 1))
sketch11.addConstraint(Sketcher.Constraint("Coincident", 16, 2, 17, 1))
sketch11.addConstraint(Sketcher.Constraint("Coincident", 17, 2, 18, 1))
sketch11.addConstraint(Sketcher.Constraint("Coincident", 18, 2, 19, 1))
sketch11.addConstraint(Sketcher.Constraint("Coincident", 19, 2, 20, 1))
sketch11.addConstraint(Sketcher.Constraint("Coincident", 20, 2, 21, 1))
sketch11.addConstraint(Sketcher.Constraint("Coincident", 21, 2, 16, 1))
sketch11.addConstraint(Sketcher.Constraint("Vertical", 0))
sketch11.addConstraint(Sketcher.Constraint("Horizontal", 1))
sketch11.addConstraint(Sketcher.Constraint("Horizontal", 4))
sketch11.addConstraint(Sketcher.Constraint("Horizontal", 5))
sketch11.addConstraint(Sketcher.Constraint("Horizontal", 8))
sketch11.addConstraint(Sketcher.Constraint("Vertical", 9))
sketch11.addConstraint(Sketcher.Constraint("Horizontal", 12))
sketch11.addConstraint(Sketcher.Constraint("Horizontal", 15))
sketch11.addConstraint(Sketcher.Constraint("Horizontal", 18))
sketch11.addConstraint(Sketcher.Constraint("Horizontal", 21))
sketch11.addConstraint(Sketcher.Constraint("Symmetric", 3, 2, 5, 2, -2))
sketch11.addConstraint(Sketcher.Constraint("Symmetric", 2, 2, 6, 2, -2))
sketch11.addConstraint(Sketcher.Constraint("Symmetric", 1, 2, 7, 2, -2))
sketch11.addConstraint(Sketcher.Constraint("Symmetric", 13, 2, 16, 2, -2))
sketch11.addConstraint(Sketcher.Constraint("Symmetric", 12, 2, 17, 2, -2))
sketch11.addConstraint(Sketcher.Constraint("Symmetric", 10, 2, 19, 2, -2))
sketch11.addConstraint(Sketcher.Constraint("Symmetric", 15, 2, 20, 2, -2))
sketch11.addConstraint(Sketcher.Constraint("Parallel", 2, 6))
sketch11.addConstraint(Sketcher.Constraint("Parallel", 6, 10))
sketch11.addConstraint(Sketcher.Constraint("Parallel", 7, 11))
sketch11.addConstraint(Sketcher.Constraint("Parallel", 10, 13))
sketch11.addConstraint(Sketcher.Constraint("Parallel", 11, 14))
sketch11.addConstraint(Sketcher.Constraint("Parallel", 13, 16))
sketch11.addConstraint(Sketcher.Constraint("Parallel", 16, 19))
sketch11.addConstraint(Sketcher.Constraint("Horizontal", 10, 2, 13, 2))
sketch11.addConstraint(Sketcher.Constraint("Vertical", 1, 2, 3, 2))
sketch11.addConstraint(Sketcher.Constraint("Vertical", 7, 2, 12, 2))
sketch11.addConstraint(Sketcher.Constraint("Vertical", 6, 2, 13, 2))
sketch11.addConstraint(Sketcher.Constraint("Vertical", 12, 2, 14, 2))
sketch11.addConstraint(Sketcher.Constraint("Equal", 4, 5))
sketch11.addConstraint(Sketcher.Constraint("Angle", 2, Q("120 deg")))
sketch11.addConstraint(Sketcher.Constraint("DistanceY", 0, 2, 0, 1, 8.5))
sketch11.addConstraint(Sketcher.Constraint("DistanceX", -1, 1, 0, 2, 37.0))
sketch11.addConstraint(Sketcher.Constraint("DistanceY", 2, 2, -1, 1, 41.0))
sketch11.addConstraint(Sketcher.Constraint("DistanceY", 11, 2, 8, 2, 18.0))
sketch11.addConstraint(Sketcher.Constraint("DistanceX", 1, 2, 1, 1, 8.203739))
sketch11.addConstraint(Sketcher.Constraint("DistanceX", 12, 1, 12, 2, 4.907477))
pocket8 = body.newObject("PartDesign::Pocket", "Pocket007")
pocket8.Profile = sketch11
pocket8.Length = 30
doc.recompute()

fillet3 = body.newObject("PartDesign::Fillet", "Fillet002")
fillet3.Base = (pocket8, edges_at(pocket8, [
    (-37, -18.5, -47.5),
    (29.25, -18.5, -95),
    (-37, -47.5, -47.5),
    (37, -18.5, -47.5),
    (37, -47.5, -47.5),
    (-29.25, -18.5, -95),
    (-21.5, -18.5, -47.5),
    (-21.5, -47.5, -47.5),
    (21.5, -18.5, -47.5),
    (21.5, -47.5, -47.5),
]))
fillet3.Radius = 0.8

# Sketch on XY plane
sketch12 = body.newObject("Sketcher::SketchObject", "Sketch011")
sketch12.AttachmentSupport = (doc.getObject("XY_Plane"), [""])
sketch12.MapMode = "FlatFace"
sketch12.AttachmentOffset = App.Placement(App.Vector(0, 0, 11), App.Rotation())
sketch12.addGeometry(Part.LineSegment(App.Vector(41, 72.5, 0), App.Vector(41, 32.478784, 0)), False)
sketch12.addGeometry(Part.LineSegment(App.Vector(41, 32.478784, 0), App.Vector(-41, 32.478784, 0)), False)
sketch12.addGeometry(Part.LineSegment(App.Vector(-41, 32.478784, 0), App.Vector(-41, 72.5, 0)), False)
sketch12.addGeometry(Part.ArcOfCircle(Part.Circle(App.Vector(-36, 72.5, 0), App.Vector(0, 0, 1), 5), math.radians(90), math.radians(180)), False)
sketch12.addGeometry(Part.LineSegment(App.Vector(-36, 77.5, 0), App.Vector(36, 77.5, 0)), False)
sketch12.addGeometry(Part.ArcOfCircle(Part.Circle(App.Vector(36, 72.5, 0), App.Vector(0, 0, 1), 5), math.radians(0), math.radians(90)), False)
sketch12.addConstraint(Sketcher.Constraint("Coincident", 0, 2, 1, 1))
sketch12.addConstraint(Sketcher.Constraint("Coincident", 1, 2, 2, 1))
sketch12.addConstraint(Sketcher.Constraint("Tangent", 2, 2, 3, 2))
sketch12.addConstraint(Sketcher.Constraint("Tangent", 3, 1, 4, 1))
sketch12.addConstraint(Sketcher.Constraint("Tangent", 4, 2, 5, 2))
sketch12.addConstraint(Sketcher.Constraint("Tangent", 5, 1, 0, 1))
sketch12.addConstraint(Sketcher.Constraint("Vertical", 0))
sketch12.addConstraint(Sketcher.Constraint("Horizontal", 1))
sketch12.addConstraint(Sketcher.Constraint("Vertical", 2))
sketch12.addConstraint(Sketcher.Constraint("Horizontal", 4))
sketch12.addConstraint(Sketcher.Constraint("Equal", 3, 5))
sketch12.addConstraint(Sketcher.Constraint("Radius", 3, 5.0))
sketch12.addConstraint(Sketcher.Constraint("DistanceX", 1, 2, 1, 1, 82.0))
sketch12.addConstraint(Sketcher.Constraint("DistanceX", 3, 3, -1, 1, 36.0))
sketch12.addConstraint(Sketcher.Constraint("DistanceY", -1, 1, 3, 3, 72.5))
sketch12.addConstraint(Sketcher.Constraint("DistanceY", 0, 2, 0, 1, 40.021216))
pocket9 = body.newObject("PartDesign::Pocket", "Pocket008")
pocket9.Profile = sketch12
pocket9.Length = 11

# Sketch on XY plane
sketch13 = body.newObject("Sketcher::SketchObject", "Sketch012")
sketch13.AttachmentSupport = (doc.getObject("XY_Plane"), [""])
sketch13.MapMode = "FlatFace"
sketch13.addGeometry(Part.ArcOfCircle(Part.Circle(App.Vector(-17, 17, 0), App.Vector(0, 0, 1), 2.6), math.radians(-90), math.radians(0)), False)
sketch13.addGeometry(Part.ArcOfCircle(Part.Circle(App.Vector(-17, 17, 0), App.Vector(0, 0, 1), 2.6), math.radians(180), math.radians(270)), False)
sketch13.addGeometry(Part.ArcOfCircle(Part.Circle(App.Vector(-17, 17, 0), App.Vector(0, 0, 1), 2.6), math.radians(0), math.radians(180)), False)
sketch13.addGeometry(Part.ArcOfCircle(Part.Circle(App.Vector(-17, -17, 0), App.Vector(0, 0, 1), 2.6), math.radians(90), math.radians(180)), False)
sketch13.addGeometry(Part.ArcOfCircle(Part.Circle(App.Vector(-17, -17, 0), App.Vector(0, 0, 1), 2.6), math.radians(0), math.radians(90)), False)
sketch13.addGeometry(Part.ArcOfCircle(Part.Circle(App.Vector(-17, -17, 0), App.Vector(0, 0, 1), 2.6), math.radians(180), math.radians(360)), False)
sketch13.addGeometry(Part.ArcOfCircle(Part.Circle(App.Vector(17, -17, 0), App.Vector(0, 0, 1), 2.6), math.radians(90), math.radians(180)), False)
sketch13.addGeometry(Part.ArcOfCircle(Part.Circle(App.Vector(17, -17, 0), App.Vector(0, 0, 1), 2.6), math.radians(180), math.radians(450)), False)
sketch13.addGeometry(Part.ArcOfCircle(Part.Circle(App.Vector(17, 17, 0), App.Vector(0, 0, 1), 2.6), math.radians(-90), math.radians(180)), False)
sketch13.addGeometry(Part.ArcOfCircle(Part.Circle(App.Vector(17, 17, 0), App.Vector(0, 0, 1), 2.6), math.radians(180), math.radians(270)), False)
sketch13.addConstraint(Sketcher.Constraint("Tangent", 0, 1, 1, 2))
sketch13.addConstraint(Sketcher.Constraint("Tangent", 1, 1, 2, 2))
sketch13.addConstraint(Sketcher.Constraint("Tangent", 2, 1, 0, 2))
sketch13.addConstraint(Sketcher.Constraint("Tangent", 3, 1, 4, 2))
sketch13.addConstraint(Sketcher.Constraint("Tangent", 4, 1, 5, 2))
sketch13.addConstraint(Sketcher.Constraint("Tangent", 5, 1, 3, 2))
sketch13.addConstraint(Sketcher.Constraint("Tangent", 6, 1, 7, 2))
sketch13.addConstraint(Sketcher.Constraint("Coincident", 7, 1, 6, 2))
sketch13.addConstraint(Sketcher.Constraint("Tangent", 8, 1, 9, 2))
sketch13.addConstraint(Sketcher.Constraint("Coincident", 9, 1, 8, 2))
sketch13.addConstraint(Sketcher.Constraint("Equal", 2, 3))
sketch13.addConstraint(Sketcher.Constraint("Equal", 5, 6))
sketch13.addConstraint(Sketcher.Constraint("Equal", 7, 8))
sketch13.addConstraint(Sketcher.Constraint("Symmetric", 0, 3, 6, 3, -1, 1))
sketch13.addConstraint(Sketcher.Constraint("Symmetric", 3, 3, 8, 3, -1, 1))
sketch13.addConstraint(Sketcher.Constraint("Symmetric", 3, 3, 6, 3, -2))
sketch13.addConstraint(Sketcher.Constraint("Horizontal", 9, 3, 1, 1))
sketch13.addConstraint(Sketcher.Constraint("Horizontal", 1, 1, 2, 1))
sketch13.addConstraint(Sketcher.Constraint("Horizontal", 7, 3, 4, 1))
sketch13.addConstraint(Sketcher.Constraint("Horizontal", 4, 1, 5, 1))
sketch13.addConstraint(Sketcher.Constraint("Horizontal", 5, 1, 7, 1))
sketch13.addConstraint(Sketcher.Constraint("Horizontal", 2, 1, 9, 1))
sketch13.addConstraint(Sketcher.Constraint("Vertical", 5, 3, 0, 1))
sketch13.addConstraint(Sketcher.Constraint("Vertical", 0, 1, 3, 1))
sketch13.addConstraint(Sketcher.Constraint("Vertical", 9, 3, 6, 1))
sketch13.addConstraint(Sketcher.Constraint("Vertical", 6, 1, 8, 1))
sketch13.addConstraint(Sketcher.Constraint("Radius", 0, 2.6))
sketch13.addConstraint(Sketcher.Constraint("DistanceX", 0, 3, -1, 1, 17.0))
sketch13.addConstraint(Sketcher.Constraint("DistanceY", -1, 1, 0, 3, 17.0))
pocket10 = body.newObject("PartDesign::Pocket", "Pocket009")
pocket10.Profile = sketch13
pocket10.Length = 11
pocket10.Reversed = True

doc.recompute()
